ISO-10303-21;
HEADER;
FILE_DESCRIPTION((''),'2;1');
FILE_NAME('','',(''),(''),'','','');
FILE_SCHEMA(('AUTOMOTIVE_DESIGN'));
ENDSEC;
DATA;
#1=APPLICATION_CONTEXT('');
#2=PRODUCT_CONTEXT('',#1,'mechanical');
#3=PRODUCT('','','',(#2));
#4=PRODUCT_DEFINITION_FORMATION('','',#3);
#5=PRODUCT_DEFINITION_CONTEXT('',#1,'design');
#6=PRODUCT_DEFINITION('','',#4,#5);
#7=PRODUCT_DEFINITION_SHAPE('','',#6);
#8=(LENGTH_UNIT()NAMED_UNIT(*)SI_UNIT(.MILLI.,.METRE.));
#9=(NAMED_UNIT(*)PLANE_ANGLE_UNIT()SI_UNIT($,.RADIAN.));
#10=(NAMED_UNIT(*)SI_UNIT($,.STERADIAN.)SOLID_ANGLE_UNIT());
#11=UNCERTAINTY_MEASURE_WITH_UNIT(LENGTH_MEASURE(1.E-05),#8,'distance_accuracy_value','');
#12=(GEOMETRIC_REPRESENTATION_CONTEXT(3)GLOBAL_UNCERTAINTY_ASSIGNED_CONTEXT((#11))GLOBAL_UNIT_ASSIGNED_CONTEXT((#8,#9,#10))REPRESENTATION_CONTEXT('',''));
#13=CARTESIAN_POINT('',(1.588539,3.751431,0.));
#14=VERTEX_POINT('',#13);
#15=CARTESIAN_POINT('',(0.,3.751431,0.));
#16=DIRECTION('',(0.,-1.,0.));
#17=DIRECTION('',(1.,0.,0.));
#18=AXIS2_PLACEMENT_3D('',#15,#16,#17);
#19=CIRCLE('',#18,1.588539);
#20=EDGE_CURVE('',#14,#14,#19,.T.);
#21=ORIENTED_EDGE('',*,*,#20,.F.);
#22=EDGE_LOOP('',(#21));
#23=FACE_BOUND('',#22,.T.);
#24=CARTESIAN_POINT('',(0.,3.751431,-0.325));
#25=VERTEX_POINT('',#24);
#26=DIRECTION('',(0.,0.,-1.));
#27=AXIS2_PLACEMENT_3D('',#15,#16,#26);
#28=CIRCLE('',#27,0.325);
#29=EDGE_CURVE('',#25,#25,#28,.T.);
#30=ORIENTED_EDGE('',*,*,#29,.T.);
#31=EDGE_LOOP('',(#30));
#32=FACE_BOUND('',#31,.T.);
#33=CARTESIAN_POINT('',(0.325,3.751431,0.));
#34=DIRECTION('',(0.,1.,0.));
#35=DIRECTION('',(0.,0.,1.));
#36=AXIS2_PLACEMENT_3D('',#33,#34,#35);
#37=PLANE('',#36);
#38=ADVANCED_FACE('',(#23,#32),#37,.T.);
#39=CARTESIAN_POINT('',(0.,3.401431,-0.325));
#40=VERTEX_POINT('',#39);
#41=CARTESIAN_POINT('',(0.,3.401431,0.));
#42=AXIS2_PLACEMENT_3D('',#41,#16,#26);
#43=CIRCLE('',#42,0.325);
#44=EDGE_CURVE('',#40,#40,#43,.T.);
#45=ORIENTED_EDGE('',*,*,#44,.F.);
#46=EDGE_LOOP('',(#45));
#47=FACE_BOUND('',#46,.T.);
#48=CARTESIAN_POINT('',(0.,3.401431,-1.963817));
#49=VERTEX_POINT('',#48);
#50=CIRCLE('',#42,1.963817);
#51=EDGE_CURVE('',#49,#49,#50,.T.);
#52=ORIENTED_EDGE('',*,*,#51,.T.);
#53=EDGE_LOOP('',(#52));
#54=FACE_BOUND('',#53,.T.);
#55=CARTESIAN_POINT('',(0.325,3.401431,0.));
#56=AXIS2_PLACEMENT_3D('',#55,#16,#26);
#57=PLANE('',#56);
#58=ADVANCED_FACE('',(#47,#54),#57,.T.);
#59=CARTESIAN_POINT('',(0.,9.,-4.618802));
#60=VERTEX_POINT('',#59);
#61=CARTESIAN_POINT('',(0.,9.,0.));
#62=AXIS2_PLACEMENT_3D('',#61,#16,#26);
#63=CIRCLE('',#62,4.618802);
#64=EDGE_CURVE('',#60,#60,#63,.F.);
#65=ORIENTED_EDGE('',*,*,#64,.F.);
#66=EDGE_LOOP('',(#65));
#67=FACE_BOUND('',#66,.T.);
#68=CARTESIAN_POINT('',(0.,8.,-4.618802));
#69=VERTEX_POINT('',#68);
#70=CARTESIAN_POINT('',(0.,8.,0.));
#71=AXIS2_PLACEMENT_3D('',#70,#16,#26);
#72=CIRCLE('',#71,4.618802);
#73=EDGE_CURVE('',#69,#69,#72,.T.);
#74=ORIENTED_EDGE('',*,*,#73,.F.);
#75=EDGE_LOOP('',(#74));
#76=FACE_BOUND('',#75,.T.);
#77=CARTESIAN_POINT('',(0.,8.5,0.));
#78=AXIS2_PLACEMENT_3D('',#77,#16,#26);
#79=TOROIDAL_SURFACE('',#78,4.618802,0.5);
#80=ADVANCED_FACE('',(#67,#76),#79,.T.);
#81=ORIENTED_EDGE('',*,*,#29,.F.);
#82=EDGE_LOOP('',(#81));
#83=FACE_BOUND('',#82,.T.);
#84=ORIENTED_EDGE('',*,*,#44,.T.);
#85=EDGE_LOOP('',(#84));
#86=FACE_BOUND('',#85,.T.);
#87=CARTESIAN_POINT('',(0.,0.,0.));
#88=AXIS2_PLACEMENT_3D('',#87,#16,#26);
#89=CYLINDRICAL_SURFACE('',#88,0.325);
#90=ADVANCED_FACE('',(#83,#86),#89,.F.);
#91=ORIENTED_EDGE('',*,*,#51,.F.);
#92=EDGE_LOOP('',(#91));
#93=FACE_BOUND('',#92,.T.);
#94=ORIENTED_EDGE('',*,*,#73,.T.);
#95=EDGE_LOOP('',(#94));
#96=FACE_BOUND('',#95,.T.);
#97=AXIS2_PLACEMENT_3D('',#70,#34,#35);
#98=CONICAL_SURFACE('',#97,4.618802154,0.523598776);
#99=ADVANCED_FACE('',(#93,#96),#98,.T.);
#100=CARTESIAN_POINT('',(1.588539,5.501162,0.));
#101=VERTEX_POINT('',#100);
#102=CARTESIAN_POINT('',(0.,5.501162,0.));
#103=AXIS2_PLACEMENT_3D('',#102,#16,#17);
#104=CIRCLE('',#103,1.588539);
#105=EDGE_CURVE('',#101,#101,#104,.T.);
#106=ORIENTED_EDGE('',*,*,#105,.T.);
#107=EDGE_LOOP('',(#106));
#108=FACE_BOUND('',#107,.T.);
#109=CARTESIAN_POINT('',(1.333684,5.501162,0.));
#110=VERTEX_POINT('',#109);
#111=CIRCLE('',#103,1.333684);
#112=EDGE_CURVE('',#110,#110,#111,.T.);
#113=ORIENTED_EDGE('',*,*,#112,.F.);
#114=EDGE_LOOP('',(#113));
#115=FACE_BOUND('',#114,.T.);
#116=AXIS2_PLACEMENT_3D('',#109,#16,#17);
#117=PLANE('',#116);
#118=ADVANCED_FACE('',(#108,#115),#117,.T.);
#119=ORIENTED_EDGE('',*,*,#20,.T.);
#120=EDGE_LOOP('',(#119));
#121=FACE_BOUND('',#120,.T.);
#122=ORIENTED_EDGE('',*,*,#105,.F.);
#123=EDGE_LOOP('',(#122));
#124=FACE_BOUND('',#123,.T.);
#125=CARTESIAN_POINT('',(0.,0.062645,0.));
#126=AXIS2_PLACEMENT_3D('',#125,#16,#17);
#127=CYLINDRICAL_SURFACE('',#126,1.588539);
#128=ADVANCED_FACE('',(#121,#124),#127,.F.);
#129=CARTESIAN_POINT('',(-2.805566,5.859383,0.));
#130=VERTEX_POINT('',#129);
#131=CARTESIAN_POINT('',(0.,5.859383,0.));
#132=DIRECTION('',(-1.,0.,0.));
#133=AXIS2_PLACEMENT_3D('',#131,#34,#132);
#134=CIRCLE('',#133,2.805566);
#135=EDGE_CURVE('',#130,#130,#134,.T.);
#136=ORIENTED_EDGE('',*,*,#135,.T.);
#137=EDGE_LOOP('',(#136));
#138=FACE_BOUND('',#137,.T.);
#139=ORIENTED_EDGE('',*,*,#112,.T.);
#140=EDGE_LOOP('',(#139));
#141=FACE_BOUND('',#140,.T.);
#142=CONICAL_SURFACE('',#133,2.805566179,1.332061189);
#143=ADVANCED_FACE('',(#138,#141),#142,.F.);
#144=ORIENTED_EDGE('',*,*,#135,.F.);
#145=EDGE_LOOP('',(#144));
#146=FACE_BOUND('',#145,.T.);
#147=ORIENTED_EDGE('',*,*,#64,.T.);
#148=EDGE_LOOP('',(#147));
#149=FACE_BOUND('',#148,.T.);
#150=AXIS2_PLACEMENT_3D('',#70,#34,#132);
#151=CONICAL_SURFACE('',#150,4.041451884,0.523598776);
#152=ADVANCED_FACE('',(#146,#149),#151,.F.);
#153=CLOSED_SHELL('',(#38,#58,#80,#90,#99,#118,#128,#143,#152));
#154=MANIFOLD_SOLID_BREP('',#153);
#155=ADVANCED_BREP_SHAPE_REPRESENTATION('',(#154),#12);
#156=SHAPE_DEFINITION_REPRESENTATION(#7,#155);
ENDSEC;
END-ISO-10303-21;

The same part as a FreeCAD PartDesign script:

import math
import FreeCAD as App
import Part
import Sketcher
Q = App.Units.Quantity

doc = App.newDocument("Part")
body = doc.addObject("PartDesign::Body", "Body")

# Sketch on XY plane
sketch1 = body.newObject("Sketcher::SketchObject", "Sketch")
sketch1.AttachmentSupport = (doc.getObject("XY_Plane"), [""])
sketch1.MapMode = "FlatFace"
sketch1.addGeometry(Part.LineSegment(App.Vector(-4.618802, 8, 0), App.Vector(0, 0, 0)), False)
sketch1.addGeometry(Part.LineSegment(App.Vector(0, 0, 0), App.Vector(0, 8, 0)), False)
sketch1.addGeometry(Part.LineSegment(App.Vector(0, 8, 0), App.Vector(-4.618802, 8, 0)), False)
sketch1.addConstraint(Sketcher.Constraint("Coincident", 0, 2, 1, 1))
sketch1.addConstraint(Sketcher.Constraint("Coincident", 1, 2, 2, 1))
sketch1.addConstraint(Sketcher.Constraint("Coincident", 2, 2, 0, 1))
sketch1.addConstraint(Sketcher.Constraint("Vertical", 1))
sketch1.addConstraint(Sketcher.Constraint("Horizontal", 2))
sketch1.addConstraint(Sketcher.Constraint("Coincident", 0, 2, -1, 1))
sketch1.addConstraint(Sketcher.Constraint("DistanceY", 1, 1, 1, 2, 8.0))
sketch1.addConstraint(Sketcher.Constraint("Angle", 0, Q("-60 deg")))
revolution = body.newObject("PartDesign::Revolution", "Revolution")
revolution.Profile = sketch1
revolution.ReferenceAxis = (sketch1, ["V_Axis"])
revolution.Angle = 360

# Sketch on XZ plane
sketch2 = body.newObject("Sketcher::SketchObject", "Sketch001")
sketch2.AttachmentSupport = (doc.getObject("XZ_Plane"), [""])
sketch2.MapMode = "FlatFace"
sketch2.addGeometry(Part.Circle(App.Vector(0, 0, 0), App.Vector(0, 0, 1), 0.31), False)
sketch2.addConstraint(Sketcher.Constraint("Coincident", 0, 3, -1, 1))
sketch2.addConstraint(Sketcher.Constraint("Diameter", 0, 0.62))
pad1 = body.newObject("PartDesign::Pad", "Pad")
pad1.Profile = sketch2
pad1.Type = "TwoLengths"
pad1.Length = 0.6
pad1.Length2 = 6
pad1.Reversed = True

# Sketch on XZ plane
sketch3 = body.newObject("Sketcher::SketchObject", "Sketch002")
sketch3.AttachmentSupport = (doc.getObject("XZ_Plane"), [""])
sketch3.MapMode = "FlatFace"
sketch3.AttachmentOffset = App.Placement(App.Vector(0, 0, 6), App.Rotation())
sketch3.addGeometry(Part.Circle(App.Vector(0, 0, 0), App.Vector(0, 0, 1), 0.28), False)
sketch3.addConstraint(Sketcher.Constraint("Coincident", 0, 3, -1, 1))
sketch3.addConstraint(Sketcher.Constraint("Diameter", 0, 0.56))
pocket1 = body.newObject("PartDesign::Pocket", "Pocket")
pocket1.Profile = sketch3
pocket1.Type = "ThroughAll"

# Sketch on XY plane
sketch4 = body.newObject("Sketcher::SketchObject", "Sketch003")
sketch4.AttachmentSupport = (doc.getObject("XY_Plane"), [""])
sketch4.MapMode = "FlatFace"
sketch4.addGeometry(Part.LineSegment(App.Vector(0, 8, 0), App.Vector(-4.041452, 8, 0)), False)
sketch4.addGeometry(Part.LineSegment(App.Vector(-4.041452, 8, 0), App.Vector(0, 1, 0)), False)
sketch4.addGeometry(Part.LineSegment(App.Vector(0, 1, 0), App.Vector(0, 8, 0)), False)
sketch4.addConstraint(Sketcher.Constraint("Coincident", 0, 2, 1, 1))
sketch4.addConstraint(Sketcher.Constraint("Coincident", 1, 2, 2, 1))
sketch4.addConstraint(Sketcher.Constraint("Coincident", 2, 2, 0, 1))
sketch4.addConstraint(Sketcher.Constraint("Horizontal", 0))
sketch4.addConstraint(Sketcher.Constraint("Vertical", 2))
sketch4.addConstraint(Sketcher.Constraint("PointOnObject", 1, 2, -2))
sketch4.addConstraint(Sketcher.Constraint("DistanceY", 2, 1, 2, 2, 7.0))
sketch4.addConstraint(Sketcher.Constraint("Angle", 1, Q("-60 deg")))
sketch4.addConstraint(Sketcher.Constraint("DistanceY", -1, 1, 0, 2, 8.0))
groove = body.newObject("PartDesign::Groove", "Groove")
groove.Profile = sketch4
groove.ReferenceAxis = (sketch4, ["V_Axis"])
groove.Angle = 360

# Sketch on XY plane
sketch5 = body.newObject("Sketcher::SketchObject", "Sketch004")
sketch5.AttachmentSupport = (doc.getObject("XY_Plane"), [""])
sketch5.MapMode = "FlatFace"
sketch5.addGeometry(Part.LineSegment(App.Vector(-4.041452, 9, 0), App.Vector(-4.618802, 9, 0)), False)
sketch5.addGeometry(Part.ArcOfCircle(Part.Circle(App.Vector(-4.618802, 8.5, 0), App.Vector(0, 0, 1), 0.5), math.radians(90), math.radians(270)), False)
sketch5.addGeometry(Part.LineSegment(App.Vector(-4.618802, 8, 0), App.Vector(-4.041452, 8, 0)), False)
sketch5.addGeometry(Part.LineSegment(App.Vector(-4.041452, 8, 0), App.Vector(-4.041452, 9, 0)), False)
sketch5.addConstraint(Sketcher.Constraint("Tangent", 0, 2, 1, 1))
sketch5.addConstraint(Sketcher.Constraint("Tangent", 1, 2, 2, 1))
sketch5.addConstraint(Sketcher.Constraint("Coincident", 2, 2, 3, 1))
sketch5.addConstraint(Sketcher.Constraint("Coincident", 3, 2, 0, 1))
sketch5.addConstraint(Sketcher.Constraint("Horizontal", 0))
sketch5.addConstraint(Sketcher.Constraint("Horizontal", 2))
sketch5.addConstraint(Sketcher.Constraint("Vertical", 3))
sketch5.addConstraint(Sketcher.Constraint("Radius", 1, 0.5))
sketch5.addConstraint(Sketcher.Constraint("DistanceY", -1, 1, 0, 2, 9.0))
sketch5.addConstraint(Sketcher.Constraint("DistanceX", 0, 2, 0, 1, 0.57735))
sketch5.addConstraint(Sketcher.Constraint("DistanceX", 2, 2, -1, 1, 4.041452))
revolution2 = body.newObject("PartDesign::Revolution", "Revolution001")
revolution2.Profile = sketch5
revolution2.ReferenceAxis = (sketch5, ["V_Axis"])
revolution2.Angle = 360

# Sketch on XY plane
sketch6 = body.newObject("Sketcher::SketchObject", "Sketch005")
sketch6.AttachmentSupport = (doc.getObject("XY_Plane"), [""])
sketch6.MapMode = "FlatFace"
sketch6.addGeometry(Part.LineSegment(App.Vector(-4.932499, 9.543338, 0), App.Vector(-4.041452, 8, 0)), False)
sketch6.addGeometry(Part.LineSegment(App.Vector(-4.041452, 8, 0), App.Vector(-1.781161, 8, 0)), False)
sketch6.addGeometry(Part.LineSegment(App.Vector(-1.781161, 8, 0), App.Vector(-1.781161, 9.543338, 0)), False)
sketch6.addGeometry(Part.LineSegment(App.Vector(-1.781161, 9.543338, 0), App.Vector(-4.932499, 9.543338, 0)), False)
sketch6.addConstraint(Sketcher.Constraint("Coincident", 0, 2, 1, 1))
sketch6.addConstraint(Sketcher.Constraint("Coincident", 1, 2, 2, 1))
sketch6.addConstraint(Sketcher.Constraint("Coincident", 2, 2, 3, 1))
sketch6.addConstraint(Sketcher.Constraint("Coincident", 3, 2, 0, 1))
sketch6.addConstraint(Sketcher.Constraint("Horizontal", 1))
sketch6.addConstraint(Sketcher.Constraint("Vertical", 2))
sketch6.addConstraint(Sketcher.Constraint("Horizontal", 3))
sketch6.addConstraint(Sketcher.Constraint("Angle", 0, Q("-60 deg")))
sketch6.addConstraint(Sketcher.Constraint("DistanceY", -1, 1, 0, 2, 8.0))
sketch6.addConstraint(Sketcher.Constraint("DistanceX", 1, 1, 1, 2, 2.260291))
sketch6.addConstraint(Sketcher.Constraint("DistanceY", 2, 1, 2, 2, 1.543338))
sketch6.addConstraint(Sketcher.Constraint("DistanceX", 3, 2, -1, 1, 4.932499))
groove2 = body.newObject("PartDesign::Groove", "Groove001")
groove2.Profile = sketch6
groove2.ReferenceAxis = (sketch6, ["V_Axis"])
groove2.Angle = 360

# Sketch on XY plane
sketch7 = body.newObject("Sketcher::SketchObject", "Sketch006")
sketch7.AttachmentSupport = (doc.getObject("XY_Plane"), [""])
sketch7.MapMode = "FlatFace"
sketch7.addGeometry(Part.LineSegment(App.Vector(0.325, 3.751431, 0), App.Vector(0.325, 3.401431, 0)), False)
sketch7.addGeometry(Part.LineSegment(App.Vector(0.325, 3.401431, 0), App.Vector(1.963817, 3.401431, 0)), False)
sketch7.addGeometry(Part.LineSegment(App.Vector(1.963817, 3.401431, 0), App.Vector(2.16589, 3.751431, 0)), False)
sketch7.addGeometry(Part.LineSegment(App.Vector(2.16589, 3.751431, 0), App.Vector(0.325, 3.751431, 0)), False)
sketch7.addConstraint(Sketcher.Constraint("Coincident", 0, 2, 1, 1))
sketch7.addConstraint(Sketcher.Constraint("Coincident", 1, 2, 2, 1))
sketch7.addConstraint(Sketcher.Constraint("Coincident", 2, 2, 3, 1))
sketch7.addConstraint(Sketcher.Constraint("Coincident", 3, 2, 0, 1))
sketch7.addConstraint(Sketcher.Constraint("Vertical", 0))
sketch7.addConstraint(Sketcher.Constraint("Horizontal", 1))
sketch7.addConstraint(Sketcher.Constraint("Horizontal", 3))
sketch7.addConstraint(Sketcher.Constraint("Angle", 2, Q("60 deg")))
sketch7.addConstraint(Sketcher.Constraint("DistanceY", 0, 2, 0, 1, 0.35))
sketch7.addConstraint(Sketcher.Constraint("DistanceX", -1, 1, 0, 2, 0.325))
sketch7.addConstraint(Sketcher.Constraint("DistanceX", 3, 2, 3, 1, 1.84089))
sketch7.addConstraint(Sketcher.Constraint("DistanceY", -1, 1, 0, 2, 3.401431))
revolution3 = body.newObject("PartDesign::Revolution", "Revolution002")
revolution3.Profile = sketch7
revolution3.ReferenceAxis = (sketch7, ["V_Axis"])
revolution3.Angle = 360

# Sketch on XY plane
sketch8 = body.newObject("Sketcher::SketchObject", "Sketch007")
sketch8.AttachmentSupport = (doc.getObject("XY_Plane"), [""])
sketch8.MapMode = "FlatFace"
sketch8.addGeometry(Part.LineSegment(App.Vector(4.735567, 3.401431, 0), App.Vector(-5.830144, 3.401431, 0)), False)
sketch8.addGeometry(Part.LineSegment(App.Vector(-5.830144, 3.401431, 0), App.Vector(-5.830144, -6.564906, 0)), False)
sketch8.addGeometry(Part.LineSegment(App.Vector(-5.830144, -6.564906, 0), App.Vector(4.735567, -6.564906, 0)), False)
sketch8.addGeometry(Part.LineSegment(App.Vector(4.735567, -6.564906, 0), App.Vector(4.735567, 3.401431, 0)), False)
sketch8.addConstraint(Sketcher.Constraint("Coincident", 0, 2, 1, 1))
sketch8.addConstraint(Sketcher.Constraint("Coincident", 1, 2, 2, 1))
sketch8.addConstraint(Sketcher.Constraint("Coincident", 2, 2, 3, 1))
sketch8.addConstraint(Sketcher.Constraint("Coincident", 3, 2, 0, 1))
sketch8.addConstraint(Sketcher.Constraint("Horizontal", 0))
sketch8.addConstraint(Sketcher.Constraint("Vertical", 1))
sketch8.addConstraint(Sketcher.Constraint("Horizontal", 2))
sketch8.addConstraint(Sketcher.Constraint("Vertical", 3))
sketch8.addConstraint(Sketcher.Constraint("DistanceX", 0, 2, 0, 1, 10.565711))
sketch8.addConstraint(Sketcher.Constraint("DistanceY", 1, 2, 1, 1, 9.966337))
sketch8.addConstraint(Sketcher.Constraint("DistanceY", -1, 1, 0, 2, 3.401431))
sketch8.addConstraint(Sketcher.Constraint("DistanceX", 0, 2, -1, 1, 5.830144))
pocket2 = body.newObject("PartDesign::Pocket", "Pocket001")
pocket2.Profile = sketch8
pocket2.Type = "ThroughAll"
pocket2.Midplane = True

# Sketch on XY plane
sketch9 = body.newObject("Sketcher::SketchObject", "Sketch008")
sketch9.AttachmentSupport = (doc.getObject("XY_Plane"), [""])
sketch9.MapMode = "FlatFace"
sketch9.addGeometry(Part.LineSegment(App.Vector(1.588539, 5.501162, 0), App.Vector(1.588539, 3.751431, 0)), False)
sketch9.addGeometry(Part.LineSegment(App.Vector(1.588539, 3.751431, 0), App.Vector(2.698088, 5.673226, 0)), False)
sketch9.addGeometry(Part.LineSegment(App.Vector(2.698088, 5.673226, 0), App.Vector(2.805566, 5.859383, 0)), False)
sketch9.addGeometry(Part.LineSegment(App.Vector(2.805566, 5.859383, 0), App.Vector(1.333684, 5.501162, 0)), False)
sketch9.addGeometry(Part.LineSegment(App.Vector(1.333684, 5.501162, 0), App.Vector(1.588539, 5.501162, 0)), False)
sketch9.addConstraint(Sketcher.Constraint("Coincident", 0, 2, 1, 1))
sketch9.addConstraint(Sketcher.Constraint("Coincident", 1, 2, 2, 1))
sketch9.addConstraint(Sketcher.Constraint("Coincident", 2, 2, 3, 1))
sketch9.addConstraint(Sketcher.Constraint("Coincident", 3, 2, 4, 1))
sketch9.addConstraint(Sketcher.Constraint("Coincident", 4, 2, 0, 1))
sketch9.addConstraint(Sketcher.Constraint("Vertical", 0))
sketch9.addConstraint(Sketcher.Constraint("Horizontal", 4))
sketch9.addConstraint(Sketcher.Constraint("Parallel", 1, 2))
sketch9.addConstraint(Sketcher.Constraint("Angle", 1, Q("60 deg")))
sketch9.addConstraint(Sketcher.Constraint("DistanceY", 0, 2, 0, 1, 1.749731))
sketch9.addConstraint(Sketcher.Constraint("DistanceX", 4, 1, 4, 2, 0.254856))
sketch9.addConstraint(Sketcher.Constraint("DistanceX", -1, 1, 0, 2, 1.588539))
sketch9.addConstraint(Sketcher.Constraint("DistanceY", -1, 1, 0, 2, 3.751431))
sketch9.addConstraint(Sketcher.Constraint("DistanceX", -1, 1, 1, 2, 2.698088))
sketch9.addConstraint(Sketcher.Constraint("DistanceX", 1, 2, 2, 2, 0.107478))
revolution4 = body.newObject("PartDesign::Revolution", "Revolution003")
revolution4.Profile = sketch9
revolution4.ReferenceAxis = (sketch9, ["V_Axis"])
revolution4.Angle = 360

doc.recompute()
